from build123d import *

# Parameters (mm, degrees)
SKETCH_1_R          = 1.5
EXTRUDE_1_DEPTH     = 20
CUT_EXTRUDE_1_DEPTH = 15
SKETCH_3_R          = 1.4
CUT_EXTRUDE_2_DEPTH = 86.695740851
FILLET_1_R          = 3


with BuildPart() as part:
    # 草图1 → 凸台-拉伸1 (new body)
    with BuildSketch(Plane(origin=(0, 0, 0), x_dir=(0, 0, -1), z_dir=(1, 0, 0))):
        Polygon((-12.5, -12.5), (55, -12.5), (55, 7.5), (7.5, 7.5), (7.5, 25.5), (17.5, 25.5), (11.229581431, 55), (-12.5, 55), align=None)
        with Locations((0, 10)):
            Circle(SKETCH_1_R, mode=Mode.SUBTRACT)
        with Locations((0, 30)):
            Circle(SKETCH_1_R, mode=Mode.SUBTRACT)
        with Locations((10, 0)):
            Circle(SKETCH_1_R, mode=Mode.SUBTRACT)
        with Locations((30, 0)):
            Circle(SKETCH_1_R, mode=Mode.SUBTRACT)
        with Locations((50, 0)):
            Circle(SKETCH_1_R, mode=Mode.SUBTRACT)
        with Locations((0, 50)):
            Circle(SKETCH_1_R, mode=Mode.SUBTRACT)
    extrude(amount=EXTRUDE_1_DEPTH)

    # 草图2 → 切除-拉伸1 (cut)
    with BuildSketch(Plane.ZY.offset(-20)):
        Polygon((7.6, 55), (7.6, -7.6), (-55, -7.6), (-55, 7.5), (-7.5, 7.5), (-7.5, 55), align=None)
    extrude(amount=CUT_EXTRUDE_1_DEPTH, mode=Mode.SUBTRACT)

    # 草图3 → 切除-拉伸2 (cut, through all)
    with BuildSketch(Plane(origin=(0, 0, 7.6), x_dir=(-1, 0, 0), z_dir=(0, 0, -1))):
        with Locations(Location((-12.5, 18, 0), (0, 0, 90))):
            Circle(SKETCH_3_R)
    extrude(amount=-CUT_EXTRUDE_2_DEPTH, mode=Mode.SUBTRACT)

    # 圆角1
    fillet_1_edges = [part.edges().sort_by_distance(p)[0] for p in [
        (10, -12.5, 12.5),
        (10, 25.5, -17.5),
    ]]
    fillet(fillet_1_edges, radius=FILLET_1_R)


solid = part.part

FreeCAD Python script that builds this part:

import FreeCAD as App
import Part
import Sketcher

V = App.Vector
Q = App.Units.Quantity


def edges_at(feature, points):
    """Names of the edges that pass closest to the given points."""
    edges = feature.Shape.Edges
    near = lambda p: min(range(len(edges)), key=lambda i: edges[i].distToShape(Part.Vertex(*p))[0])
    return sorted({f"Edge{near(p) + 1}" for p in points})

doc = App.newDocument("Part")
body = doc.addObject("PartDesign::Body", "Body")

# Sketch on YZ plane
sketch1 = doc.addObject("Sketcher::SketchObject", "Sketch")
body.addObject(sketch1)
sketch1.AttachmentSupport = (doc.YZ_Plane, [""])
sketch1.MapMode = "FlatFace"
sketch1.addGeometry(Part.LineSegment(V(-12.5, 12.5, 0), V(-12.5, -55, 0)), False)
sketch1.addGeometry(Part.LineSegment(V(-12.5, -55, 0), V(7.5, -55, 0)), False)
sketch1.addGeometry(Part.LineSegment(V(7.5, -55, 0), V(7.5, -7.5, 0)), False)
sketch1.addGeometry(Part.LineSegment(V(7.5, -7.5, 0), V(25.5, -7.5, 0)), False)
sketch1.addGeometry(Part.LineSegment(V(25.5, -7.5, 0), V(25.5, -17.5, 0)), False)
sketch1.addGeometry(Part.LineSegment(V(25.5, -17.5, 0), V(55, -11.2, 0)), False)
sketch1.addGeometry(Part.LineSegment(V(55, -11.2, 0), V(55, 12.5, 0)), False)
sketch1.addGeometry(Part.LineSegment(V(55, 12.5, 0), V(-12.5, 12.5, 0)), False)
sketch1.addGeometry(Part.Circle(V(0, -10, 0), V(0, 0, 1), 1.5), False)
sketch1.addGeometry(Part.Circle(V(10, 0, 0), V(0, 0, 1), 1.5), False)
sketch1.addGeometry(Part.Circle(V(0, -30, 0), V(0, 0, 1), 1.5), False)
sketch1.addGeometry(Part.Circle(V(0, -50, 0), V(0, 0, 1), 1.5), False)
sketch1.addGeometry(Part.Circle(V(30, 0, 0), V(0, 0, 1), 1.5), False)
sketch1.addGeometry(Part.Circle(V(50, 0, 0), V(0, 0, 1), 1.5), False)
sketch1.addConstraint(Sketcher.Constraint("Coincident", 0, 2, 1, 1))
sketch1.addConstraint(Sketcher.Constraint("Coincident", 1, 2, 2, 1))
sketch1.addConstraint(Sketcher.Constraint("Coincident", 2, 2, 3, 1))
sketch1.addConstraint(Sketcher.Constraint("Coincident", 3, 2, 4, 1))
sketch1.addConstraint(Sketcher.Constraint("Coincident", 4, 2, 5, 1))
sketch1.addConstraint(Sketcher.Constraint("Coincident", 5, 2, 6, 1))
sketch1.addConstraint(Sketcher.Constraint("Coincident", 6, 2, 7, 1))
sketch1.addConstraint(Sketcher.Constraint("Coincident", 7, 2, 0, 1))
sketch1.addConstraint(Sketcher.Constraint("Vertical", 0))
sketch1.addConstraint(Sketcher.Constraint("Horizontal", 1))
sketch1.addConstraint(Sketcher.Constraint("Vertical", 2))
sketch1.addConstraint(Sketcher.Constraint("Horizontal", 3))
sketch1.addConstraint(Sketcher.Constraint("Vertical", 4))
sketch1.addConstraint(Sketcher.Constraint("Vertical", 6))
sketch1.addConstraint(Sketcher.Constraint("Horizontal", 7))
sketch1.addConstraint(Sketcher.Constraint("Equal", 8, 9))
sketch1.addConstraint(Sketcher.Constraint("Equal", 9, 10))
sketch1.addConstraint(Sketcher.Constraint("Equal", 10, 11))
sketch1.addConstraint(Sketcher.Constraint("Equal", 11, 12))
sketch1.addConstraint(Sketcher.Constraint("Equal", 12, 13))
sketch1.addConstraint(Sketcher.Constraint("PointOnObject", 8, 3, -2))
sketch1.addConstraint(Sketcher.Constraint("PointOnObject", 9, 3, -1))
sketch1.addConstraint(Sketcher.Constraint("PointOnObject", 10, 3, -2))
sketch1.addConstraint(Sketcher.Constraint("PointOnObject", 11, 3, -2))
sketch1.addConstraint(Sketcher.Constraint("PointOnObject", 12, 3, -1))
sketch1.addConstraint(Sketcher.Constraint("PointOnObject", 13, 3, -1))
sketch1.addConstraint(Sketcher.Constraint("Equal", 7, 0))
sketch1.addConstraint(Sketcher.Constraint("Diameter", 8, 3.0))
sketch1.addConstraint(Sketcher.Constraint("DistanceX", 1, 1, 1, 2, 20.0))
sketch1.addConstraint(Sketcher.Constraint("DistanceX", 3, 1, 3, 2, 18.0))
sketch1.addConstraint(Sketcher.Constraint("DistanceY", 4, 2, 4, 1, 10.0))
sketch1.addConstraint(Sketcher.Constraint("Angle", 5, Q("12 deg")))
sketch1.addConstraint(Sketcher.Constraint("DistanceX", 7, 2, 7, 1, 67.5))
sketch1.addConstraint(Sketcher.Constraint("DistanceY", 2, 1, 2, 2, 47.5))
sketch1.addConstraint(Sketcher.Constraint("DistanceY", 8, 3, -1, 1, 10.0))
sketch1.addConstraint(Sketcher.Constraint("DistanceX", -1, 1, 9, 3, 10.0))
sketch1.addConstraint(Sketcher.Constraint("DistanceY", 10, 3, -1, 1, 30.0))
sketch1.addConstraint(Sketcher.Constraint("DistanceY", 11, 3, -1, 1, 50.0))
sketch1.addConstraint(Sketcher.Constraint("DistanceX", -1, 1, 12, 3, 30.0))
sketch1.addConstraint(Sketcher.Constraint("DistanceX", -1, 1, 13, 3, 50.0))
sketch1.addConstraint(Sketcher.Constraint("DistanceY", 0, 2, -1, 1, 55.0))
sketch1.addConstraint(Sketcher.Constraint("DistanceX", -1, 1, 5, 2, 55.0))
pad1 = doc.addObject("PartDesign::Pad", "Pad")
body.addObject(pad1)
pad1.Profile = sketch1
pad1.Length = 20

# Sketch on YZ plane
sketch2 = doc.addObject("Sketcher::SketchObject", "Sketch001")
body.addObject(sketch2)
sketch2.AttachmentSupport = (doc.YZ_Plane, [""])
sketch2.MapMode = "FlatFace"
sketch2.AttachmentOffset = App.Placement(V(0, 0, 20), App.Rotation())
sketch2.addGeometry(Part.LineSegment(V(-8, 8, 0), V(55, 8, 0)), False)
sketch2.addGeometry(Part.LineSegment(V(55, 8, 0), V(55, -8, 0)), False)
sketch2.addGeometry(Part.LineSegment(V(55, -8, 0), V(8, -8, 0)), False)
sketch2.addGeometry(Part.LineSegment(V(8, -8, 0), V(8, -55, 0)), False)
sketch2.addGeometry(Part.LineSegment(V(8, -55, 0), V(-8, -55, 0)), False)
sketch2.addGeometry(Part.LineSegment(V(-8, -55, 0), V(-8, 8, 0)), False)
sketch2.addConstraint(Sketcher.Constraint("Coincident", 0, 2, 1, 1))
sketch2.addConstraint(Sketcher.Constraint("Coincident", 1, 2, 2, 1))
sketch2.addConstraint(Sketcher.Constraint("Coincident", 2, 2, 3, 1))
sketch2.addConstraint(Sketcher.Constraint("Coincident", 3, 2, 4, 1))
sketch2.addConstraint(Sketcher.Constraint("Coincident", 4, 2, 5, 1))
sketch2.addConstraint(Sketcher.Constraint("Coincident", 5, 2, 0, 1))
sketch2.addConstraint(Sketcher.Constraint("Horizontal", 0))
sketch2.addConstraint(Sketcher.Constraint("Vertical", 1))
sketch2.addConstraint(Sketcher.Constraint("Horizontal", 2))
sketch2.addConstraint(Sketcher.Constraint("Vertical", 3))
sketch2.addConstraint(Sketcher.Constraint("Horizontal", 4))
sketch2.addConstraint(Sketcher.Constraint("Vertical", 5))
sketch2.addConstraint(Sketcher.Constraint("Equal", 4, 1))
sketch2.addConstraint(Sketcher.Constraint("Equal", 2, 3))
sketch2.addConstraint(Sketcher.Constraint("DistanceX", 0, 1, 0, 2, 62.6))
sketch2.addConstraint(Sketcher.Constraint("DistanceX", 2, 2, 2, 1, 47.5))
sketch2.addConstraint(Sketcher.Constraint("DistanceX", -1, 1, 0, 2, 55.0))
sketch2.addConstraint(Sketcher.Constraint("DistanceY", 3, 2, -1, 1, 55.0))
pocket1 = doc.addObject("PartDesign::Pocket", "Pocket")
body.addObject(pocket1)
pocket1.Profile = sketch2
pocket1.Length = 15

# Sketch on XY plane
sketch3 = doc.addObject("Sketcher::SketchObject", "Sketch002")
body.addObject(sketch3)
sketch3.AttachmentSupport = (doc.XY_Plane, [""])
sketch3.MapMode = "FlatFace"
sketch3.AttachmentOffset = App.Placement(V(0, 0, 7.6), App.Rotation())
sketch3.addGeometry(Part.Circle(V(12.5, 18, 0), V(0, 0, 1), 1.4), False)
sketch3.addConstraint(Sketcher.Constraint("Diameter", 0, 2.8))
sketch3.addConstraint(Sketcher.Constraint("DistanceY", -1, 1, 0, 3, 18.0))
sketch3.addConstraint(Sketcher.Constraint("DistanceX", -1, 1, 0, 3, 12.5))
pocket2 = doc.addObject("PartDesign::Pocket", "Pocket001")
body.addObject(pocket2)
pocket2.Profile = sketch3
pocket2.Type = "ThroughAll"
pocket2.Reversed = True
doc.recompute()

fillet = doc.addObject("PartDesign::Fillet", "Fillet")
body.addObject(fillet)
fillet.Base = (pocket2, edges_at(pocket2, [(10, -12.5, 12.5), (10, 25.5, -17.5)]))
fillet.Radius = 3

doc.recompute()
